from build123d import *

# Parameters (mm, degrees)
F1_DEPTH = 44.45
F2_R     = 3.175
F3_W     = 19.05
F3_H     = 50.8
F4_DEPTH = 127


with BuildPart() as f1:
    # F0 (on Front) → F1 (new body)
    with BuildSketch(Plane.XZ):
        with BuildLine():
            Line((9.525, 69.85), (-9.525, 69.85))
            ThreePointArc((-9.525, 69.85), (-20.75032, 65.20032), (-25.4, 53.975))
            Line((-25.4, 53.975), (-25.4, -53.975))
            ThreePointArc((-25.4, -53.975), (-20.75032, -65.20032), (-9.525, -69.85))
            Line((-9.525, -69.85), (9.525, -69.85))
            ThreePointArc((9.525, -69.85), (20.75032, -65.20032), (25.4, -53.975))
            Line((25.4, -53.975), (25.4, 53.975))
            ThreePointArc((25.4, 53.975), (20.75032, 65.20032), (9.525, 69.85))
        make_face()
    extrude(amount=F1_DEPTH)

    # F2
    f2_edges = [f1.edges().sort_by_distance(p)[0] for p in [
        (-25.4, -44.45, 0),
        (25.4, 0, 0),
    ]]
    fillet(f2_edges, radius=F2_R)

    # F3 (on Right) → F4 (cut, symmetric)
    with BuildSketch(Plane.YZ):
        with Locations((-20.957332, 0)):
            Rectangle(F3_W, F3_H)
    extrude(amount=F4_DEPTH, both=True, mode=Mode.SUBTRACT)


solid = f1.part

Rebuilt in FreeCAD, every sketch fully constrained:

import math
import FreeCAD as App
import Part
import Sketcher
Q = App.Units.Quantity


def edges_at(feature, points):
    """Names of the edges that pass closest to the given points."""
    edges = feature.Shape.Edges
    near = lambda p: min(range(len(edges)), key=lambda i: edges[i].distToShape(Part.Vertex(*p))[0])
    return sorted({f"Edge{near(p) + 1}" for p in points})

doc = App.newDocument("Part")
body = doc.addObject("PartDesign::Body", "Body")

# Sketch on XZ plane
sketch1 = body.newObject("Sketcher::SketchObject", "Sketch")
sketch1.AttachmentSupport = (doc.getObject("XZ_Plane"), [""])
sketch1.MapMode = "FlatFace"
sketch1.addGeometry([
    Part.LineSegment(App.Vector(10, 70, 0), App.Vector(-10, 70, 0)),  # 0
    Part.ArcOfCircle(Part.Circle(App.Vector(-10, 54, 0), App.Vector(0, 0, 1), 16), math.radians(90), math.radians(180)),  # 1
    Part.LineSegment(App.Vector(-25, 54, 0), App.Vector(-25, -54, 0)),  # 2
    Part.ArcOfCircle(Part.Circle(App.Vector(-10, -54, 0), App.Vector(0, 0, 1), 16), math.radians(-180), math.radians(-90)),  # 3
    Part.LineSegment(App.Vector(-10, -70, 0), App.Vector(10, -70, 0)),  # 4
    Part.ArcOfCircle(Part.Circle(App.Vector(10, -54, 0), App.Vector(0, 0, 1), 16), math.radians(-90), math.radians(0)),  # 5
    Part.LineSegment(App.Vector(25, -54, 0), App.Vector(25, 54, 0)),  # 6
    Part.ArcOfCircle(Part.Circle(App.Vector(10, 54, 0), App.Vector(0, 0, 1), 16), math.radians(0), math.radians(90)),  # 7
], False)
sketch1.addConstraint([
    Sketcher.Constraint("Tangent", 0, 2, 1, 1),
    Sketcher.Constraint("Tangent", 1, 2, 2, 1),
    Sketcher.Constraint("Tangent", 2, 2, 3, 1),
    Sketcher.Constraint("Tangent", 3, 2, 4, 1),
    Sketcher.Constraint("Tangent", 4, 2, 5, 1),
    Sketcher.Constraint("Tangent", 5, 2, 6, 1),
    Sketcher.Constraint("Tangent", 6, 2, 7, 1),
    Sketcher.Constraint("Tangent", 7, 2, 0, 1),
    Sketcher.Constraint("Horizontal", 0),
    Sketcher.Constraint("Vertical", 2),
    Sketcher.Constraint("Horizontal", 4),
    Sketcher.Constraint("Vertical", 6),
    Sketcher.Constraint("Equal", 1, 3),
    Sketcher.Constraint("Equal", 3, 5),
    Sketcher.Constraint("Equal", 5, 7),
    Sketcher.Constraint("Symmetric", 1, 3, 5, 3, -1, 1),
    Sketcher.Constraint("DistanceX", 1, 2, -1, 1, Q("1 in")),
    Sketcher.Constraint("Radius", 1, Q("0.625 in")),
    Sketcher.Constraint("DistanceY", 2, 2, 2, 1, Q("4.25 in")),
])
pad1 = body.newObject("PartDesign::Pad", "Pad")
pad1.Profile = sketch1
pad1.Length = Q("1.75 in")
doc.recompute()

fillet = body.newObject("PartDesign::Fillet", "Fillet")
fillet.Base = (pad1, edges_at(pad1, [(-25.4, -44.45, 0), (25.4, 0, 0)]))
fillet.Radius = Q("0.125 in")

# Sketch on YZ plane
sketch2 = body.newObject("Sketcher::SketchObject", "Sketch001")
sketch2.AttachmentSupport = (doc.getObject("YZ_Plane"), [""])
sketch2.MapMode = "FlatFace"
sketch2.addGeometry([
    Part.LineSegment(App.Vector(-30, 25, 0), App.Vector(-30, -25, 0)),
    Part.LineSegment(App.Vector(-30, -25, 0), App.Vector(-11, -25, 0)),
    Part.LineSegment(App.Vector(-11, -25, 0), App.Vector(-11, 25, 0)),
    Part.LineSegment(App.Vector(-11, 25, 0), App.Vector(-30, 25, 0)),
], False)
sketch2.addConstraint([
    Sketcher.Constraint("Coincident", 0, 2, 1, 1),
    Sketcher.Constraint("Coincident", 1, 2, 2, 1),
    Sketcher.Constraint("Coincident", 2, 2, 3, 1),
    Sketcher.Constraint("Coincident", 3, 2, 0, 1),
    Sketcher.Constraint("Vertical", 0),
    Sketcher.Constraint("Horizontal", 1),
    Sketcher.Constraint("Vertical", 2),
    Sketcher.Constraint("Horizontal", 3),
    Sketcher.Constraint("DistanceY", 0, 2, 0, 1, Q("2 in")),
    Sketcher.Constraint("DistanceY", 0, 2, -1, 1, Q("1 in")),
    Sketcher.Constraint("DistanceX", 1, 1, 1, 2, Q("0.75 in")),
    Sketcher.Constraint("DistanceX", 0, 2, -1, 1, 30.482332),
])
pocket1 = body.newObject("PartDesign::Pocket", "Pocket")
pocket1.Profile = sketch2
pocket1.Length = Q("10 in")
pocket1.Midplane = True

doc.recompute()
